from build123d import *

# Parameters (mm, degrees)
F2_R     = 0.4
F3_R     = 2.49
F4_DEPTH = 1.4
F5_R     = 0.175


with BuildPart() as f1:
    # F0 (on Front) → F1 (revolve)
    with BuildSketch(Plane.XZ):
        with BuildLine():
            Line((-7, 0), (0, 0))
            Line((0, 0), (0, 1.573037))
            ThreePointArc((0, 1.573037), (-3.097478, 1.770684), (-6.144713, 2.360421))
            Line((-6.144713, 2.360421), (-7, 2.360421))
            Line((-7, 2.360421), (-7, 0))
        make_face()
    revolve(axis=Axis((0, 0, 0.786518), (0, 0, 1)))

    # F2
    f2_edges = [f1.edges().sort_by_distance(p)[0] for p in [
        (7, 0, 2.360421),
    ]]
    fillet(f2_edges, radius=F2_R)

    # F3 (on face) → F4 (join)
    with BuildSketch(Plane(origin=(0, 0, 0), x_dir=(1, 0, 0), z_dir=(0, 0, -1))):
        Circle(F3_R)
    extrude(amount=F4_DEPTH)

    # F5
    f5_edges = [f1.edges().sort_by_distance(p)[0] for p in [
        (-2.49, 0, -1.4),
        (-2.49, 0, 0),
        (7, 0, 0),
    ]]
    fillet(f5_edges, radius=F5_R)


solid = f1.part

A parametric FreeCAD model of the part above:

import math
import FreeCAD as App
import Part
import Sketcher


def edges_at(feature, points):
    """Names of the edges that pass closest to the given points."""
    edges = feature.Shape.Edges
    near = lambda p: min(range(len(edges)), key=lambda i: edges[i].distToShape(Part.Vertex(*p))[0])
    return sorted({f"Edge{near(p) + 1}" for p in points})

doc = App.newDocument("Part")
body = doc.addObject("PartDesign::Body", "Body")

# Sketch on XZ plane
sketch1 = doc.addObject("Sketcher::SketchObject", "Sketch")
body.addObject(sketch1)
sketch1.AttachmentSupport = (doc.XZ_Plane, [""])
sketch1.MapMode = "FlatFace"
sketch1.addGeometry([
    Part.LineSegment(App.Vector(-7, 0, 0), App.Vector(0, 0, 0)),  # 0
    Part.LineSegment(App.Vector(0, 0, 0), App.Vector(0, 1.6, 0)),  # 1
    Part.ArcOfCircle(Part.Circle(App.Vector(0, 25.9, 0), App.Vector(0, 0, 1), 24.4), math.radians(-104.6), math.radians(-90)),  # 2
    Part.LineSegment(App.Vector(-6.1, 2.4, 0), App.Vector(-7, 2.4, 0)),  # 3
    Part.LineSegment(App.Vector(-7, 2.4, 0), App.Vector(-7, 0, 0)),  # 4
], False)
sketch1.addConstraint([
    Sketcher.Constraint("Coincident", 0, 2, 1, 1),
    Sketcher.Constraint("Coincident", 1, 2, 2, 2),
    Sketcher.Constraint("Coincident", 2, 1, 3, 1),
    Sketcher.Constraint("Coincident", 3, 2, 4, 1),
    Sketcher.Constraint("Coincident", 4, 2, 0, 1),
    Sketcher.Constraint("Horizontal", 0),
    Sketcher.Constraint("Vertical", 1),
    Sketcher.Constraint("Horizontal", 3),
    Sketcher.Constraint("Vertical", 4),
    Sketcher.Constraint("Coincident", 0, 2, -1, 1),
    Sketcher.Constraint("DistanceX", 0, 1, 0, 2, 7.0),
    Sketcher.Constraint("Radius", 2, 24.370175),
    Sketcher.Constraint("DistanceY", 4, 2, 4, 1, 2.360421),
    Sketcher.Constraint("DistanceX", 3, 2, 3, 1, 0.855287),
    Sketcher.Constraint("DistanceY", 1, 1, 1, 2, 1.573037),
])
revolution = doc.addObject("PartDesign::Revolution", "Revolution")
body.addObject(revolution)
revolution.Profile = sketch1
revolution.ReferenceAxis = (sketch1, ["V_Axis"])
revolution.Angle = 360
doc.recompute()

fillet = doc.addObject("PartDesign::Fillet", "Fillet")
body.addObject(fillet)
fillet.Base = (revolution, edges_at(revolution, [(7, 0, 2.36)]))
fillet.Radius = 0.4

# Sketch on XY plane
sketch2 = doc.addObject("Sketcher::SketchObject", "Sketch001")
body.addObject(sketch2)
sketch2.AttachmentSupport = (doc.XY_Plane, [""])
sketch2.MapMode = "FlatFace"
sketch2.addGeometry(Part.Circle(App.Vector(0, 0, 0), App.Vector(0, 0, 1), 2.5), False)
sketch2.addConstraint([
    Sketcher.Constraint("Coincident", 0, 3, -1, 1),
    Sketcher.Constraint("Diameter", 0, 4.98),
])
pad1 = doc.addObject("PartDesign::Pad", "Pad")
body.addObject(pad1)
pad1.Profile = sketch2
pad1.Length = 1.4
pad1.Reversed = True
doc.recompute()

fillet2 = doc.addObject("PartDesign::Fillet", "Fillet001")
body.addObject(fillet2)
fillet2.Base = (pad1, edges_at(pad1, [(-2.49, 0, -1.4), (-2.49, 0, 0), (7, 0, 0)]))
fillet2.Radius = 0.175

doc.recompute()
